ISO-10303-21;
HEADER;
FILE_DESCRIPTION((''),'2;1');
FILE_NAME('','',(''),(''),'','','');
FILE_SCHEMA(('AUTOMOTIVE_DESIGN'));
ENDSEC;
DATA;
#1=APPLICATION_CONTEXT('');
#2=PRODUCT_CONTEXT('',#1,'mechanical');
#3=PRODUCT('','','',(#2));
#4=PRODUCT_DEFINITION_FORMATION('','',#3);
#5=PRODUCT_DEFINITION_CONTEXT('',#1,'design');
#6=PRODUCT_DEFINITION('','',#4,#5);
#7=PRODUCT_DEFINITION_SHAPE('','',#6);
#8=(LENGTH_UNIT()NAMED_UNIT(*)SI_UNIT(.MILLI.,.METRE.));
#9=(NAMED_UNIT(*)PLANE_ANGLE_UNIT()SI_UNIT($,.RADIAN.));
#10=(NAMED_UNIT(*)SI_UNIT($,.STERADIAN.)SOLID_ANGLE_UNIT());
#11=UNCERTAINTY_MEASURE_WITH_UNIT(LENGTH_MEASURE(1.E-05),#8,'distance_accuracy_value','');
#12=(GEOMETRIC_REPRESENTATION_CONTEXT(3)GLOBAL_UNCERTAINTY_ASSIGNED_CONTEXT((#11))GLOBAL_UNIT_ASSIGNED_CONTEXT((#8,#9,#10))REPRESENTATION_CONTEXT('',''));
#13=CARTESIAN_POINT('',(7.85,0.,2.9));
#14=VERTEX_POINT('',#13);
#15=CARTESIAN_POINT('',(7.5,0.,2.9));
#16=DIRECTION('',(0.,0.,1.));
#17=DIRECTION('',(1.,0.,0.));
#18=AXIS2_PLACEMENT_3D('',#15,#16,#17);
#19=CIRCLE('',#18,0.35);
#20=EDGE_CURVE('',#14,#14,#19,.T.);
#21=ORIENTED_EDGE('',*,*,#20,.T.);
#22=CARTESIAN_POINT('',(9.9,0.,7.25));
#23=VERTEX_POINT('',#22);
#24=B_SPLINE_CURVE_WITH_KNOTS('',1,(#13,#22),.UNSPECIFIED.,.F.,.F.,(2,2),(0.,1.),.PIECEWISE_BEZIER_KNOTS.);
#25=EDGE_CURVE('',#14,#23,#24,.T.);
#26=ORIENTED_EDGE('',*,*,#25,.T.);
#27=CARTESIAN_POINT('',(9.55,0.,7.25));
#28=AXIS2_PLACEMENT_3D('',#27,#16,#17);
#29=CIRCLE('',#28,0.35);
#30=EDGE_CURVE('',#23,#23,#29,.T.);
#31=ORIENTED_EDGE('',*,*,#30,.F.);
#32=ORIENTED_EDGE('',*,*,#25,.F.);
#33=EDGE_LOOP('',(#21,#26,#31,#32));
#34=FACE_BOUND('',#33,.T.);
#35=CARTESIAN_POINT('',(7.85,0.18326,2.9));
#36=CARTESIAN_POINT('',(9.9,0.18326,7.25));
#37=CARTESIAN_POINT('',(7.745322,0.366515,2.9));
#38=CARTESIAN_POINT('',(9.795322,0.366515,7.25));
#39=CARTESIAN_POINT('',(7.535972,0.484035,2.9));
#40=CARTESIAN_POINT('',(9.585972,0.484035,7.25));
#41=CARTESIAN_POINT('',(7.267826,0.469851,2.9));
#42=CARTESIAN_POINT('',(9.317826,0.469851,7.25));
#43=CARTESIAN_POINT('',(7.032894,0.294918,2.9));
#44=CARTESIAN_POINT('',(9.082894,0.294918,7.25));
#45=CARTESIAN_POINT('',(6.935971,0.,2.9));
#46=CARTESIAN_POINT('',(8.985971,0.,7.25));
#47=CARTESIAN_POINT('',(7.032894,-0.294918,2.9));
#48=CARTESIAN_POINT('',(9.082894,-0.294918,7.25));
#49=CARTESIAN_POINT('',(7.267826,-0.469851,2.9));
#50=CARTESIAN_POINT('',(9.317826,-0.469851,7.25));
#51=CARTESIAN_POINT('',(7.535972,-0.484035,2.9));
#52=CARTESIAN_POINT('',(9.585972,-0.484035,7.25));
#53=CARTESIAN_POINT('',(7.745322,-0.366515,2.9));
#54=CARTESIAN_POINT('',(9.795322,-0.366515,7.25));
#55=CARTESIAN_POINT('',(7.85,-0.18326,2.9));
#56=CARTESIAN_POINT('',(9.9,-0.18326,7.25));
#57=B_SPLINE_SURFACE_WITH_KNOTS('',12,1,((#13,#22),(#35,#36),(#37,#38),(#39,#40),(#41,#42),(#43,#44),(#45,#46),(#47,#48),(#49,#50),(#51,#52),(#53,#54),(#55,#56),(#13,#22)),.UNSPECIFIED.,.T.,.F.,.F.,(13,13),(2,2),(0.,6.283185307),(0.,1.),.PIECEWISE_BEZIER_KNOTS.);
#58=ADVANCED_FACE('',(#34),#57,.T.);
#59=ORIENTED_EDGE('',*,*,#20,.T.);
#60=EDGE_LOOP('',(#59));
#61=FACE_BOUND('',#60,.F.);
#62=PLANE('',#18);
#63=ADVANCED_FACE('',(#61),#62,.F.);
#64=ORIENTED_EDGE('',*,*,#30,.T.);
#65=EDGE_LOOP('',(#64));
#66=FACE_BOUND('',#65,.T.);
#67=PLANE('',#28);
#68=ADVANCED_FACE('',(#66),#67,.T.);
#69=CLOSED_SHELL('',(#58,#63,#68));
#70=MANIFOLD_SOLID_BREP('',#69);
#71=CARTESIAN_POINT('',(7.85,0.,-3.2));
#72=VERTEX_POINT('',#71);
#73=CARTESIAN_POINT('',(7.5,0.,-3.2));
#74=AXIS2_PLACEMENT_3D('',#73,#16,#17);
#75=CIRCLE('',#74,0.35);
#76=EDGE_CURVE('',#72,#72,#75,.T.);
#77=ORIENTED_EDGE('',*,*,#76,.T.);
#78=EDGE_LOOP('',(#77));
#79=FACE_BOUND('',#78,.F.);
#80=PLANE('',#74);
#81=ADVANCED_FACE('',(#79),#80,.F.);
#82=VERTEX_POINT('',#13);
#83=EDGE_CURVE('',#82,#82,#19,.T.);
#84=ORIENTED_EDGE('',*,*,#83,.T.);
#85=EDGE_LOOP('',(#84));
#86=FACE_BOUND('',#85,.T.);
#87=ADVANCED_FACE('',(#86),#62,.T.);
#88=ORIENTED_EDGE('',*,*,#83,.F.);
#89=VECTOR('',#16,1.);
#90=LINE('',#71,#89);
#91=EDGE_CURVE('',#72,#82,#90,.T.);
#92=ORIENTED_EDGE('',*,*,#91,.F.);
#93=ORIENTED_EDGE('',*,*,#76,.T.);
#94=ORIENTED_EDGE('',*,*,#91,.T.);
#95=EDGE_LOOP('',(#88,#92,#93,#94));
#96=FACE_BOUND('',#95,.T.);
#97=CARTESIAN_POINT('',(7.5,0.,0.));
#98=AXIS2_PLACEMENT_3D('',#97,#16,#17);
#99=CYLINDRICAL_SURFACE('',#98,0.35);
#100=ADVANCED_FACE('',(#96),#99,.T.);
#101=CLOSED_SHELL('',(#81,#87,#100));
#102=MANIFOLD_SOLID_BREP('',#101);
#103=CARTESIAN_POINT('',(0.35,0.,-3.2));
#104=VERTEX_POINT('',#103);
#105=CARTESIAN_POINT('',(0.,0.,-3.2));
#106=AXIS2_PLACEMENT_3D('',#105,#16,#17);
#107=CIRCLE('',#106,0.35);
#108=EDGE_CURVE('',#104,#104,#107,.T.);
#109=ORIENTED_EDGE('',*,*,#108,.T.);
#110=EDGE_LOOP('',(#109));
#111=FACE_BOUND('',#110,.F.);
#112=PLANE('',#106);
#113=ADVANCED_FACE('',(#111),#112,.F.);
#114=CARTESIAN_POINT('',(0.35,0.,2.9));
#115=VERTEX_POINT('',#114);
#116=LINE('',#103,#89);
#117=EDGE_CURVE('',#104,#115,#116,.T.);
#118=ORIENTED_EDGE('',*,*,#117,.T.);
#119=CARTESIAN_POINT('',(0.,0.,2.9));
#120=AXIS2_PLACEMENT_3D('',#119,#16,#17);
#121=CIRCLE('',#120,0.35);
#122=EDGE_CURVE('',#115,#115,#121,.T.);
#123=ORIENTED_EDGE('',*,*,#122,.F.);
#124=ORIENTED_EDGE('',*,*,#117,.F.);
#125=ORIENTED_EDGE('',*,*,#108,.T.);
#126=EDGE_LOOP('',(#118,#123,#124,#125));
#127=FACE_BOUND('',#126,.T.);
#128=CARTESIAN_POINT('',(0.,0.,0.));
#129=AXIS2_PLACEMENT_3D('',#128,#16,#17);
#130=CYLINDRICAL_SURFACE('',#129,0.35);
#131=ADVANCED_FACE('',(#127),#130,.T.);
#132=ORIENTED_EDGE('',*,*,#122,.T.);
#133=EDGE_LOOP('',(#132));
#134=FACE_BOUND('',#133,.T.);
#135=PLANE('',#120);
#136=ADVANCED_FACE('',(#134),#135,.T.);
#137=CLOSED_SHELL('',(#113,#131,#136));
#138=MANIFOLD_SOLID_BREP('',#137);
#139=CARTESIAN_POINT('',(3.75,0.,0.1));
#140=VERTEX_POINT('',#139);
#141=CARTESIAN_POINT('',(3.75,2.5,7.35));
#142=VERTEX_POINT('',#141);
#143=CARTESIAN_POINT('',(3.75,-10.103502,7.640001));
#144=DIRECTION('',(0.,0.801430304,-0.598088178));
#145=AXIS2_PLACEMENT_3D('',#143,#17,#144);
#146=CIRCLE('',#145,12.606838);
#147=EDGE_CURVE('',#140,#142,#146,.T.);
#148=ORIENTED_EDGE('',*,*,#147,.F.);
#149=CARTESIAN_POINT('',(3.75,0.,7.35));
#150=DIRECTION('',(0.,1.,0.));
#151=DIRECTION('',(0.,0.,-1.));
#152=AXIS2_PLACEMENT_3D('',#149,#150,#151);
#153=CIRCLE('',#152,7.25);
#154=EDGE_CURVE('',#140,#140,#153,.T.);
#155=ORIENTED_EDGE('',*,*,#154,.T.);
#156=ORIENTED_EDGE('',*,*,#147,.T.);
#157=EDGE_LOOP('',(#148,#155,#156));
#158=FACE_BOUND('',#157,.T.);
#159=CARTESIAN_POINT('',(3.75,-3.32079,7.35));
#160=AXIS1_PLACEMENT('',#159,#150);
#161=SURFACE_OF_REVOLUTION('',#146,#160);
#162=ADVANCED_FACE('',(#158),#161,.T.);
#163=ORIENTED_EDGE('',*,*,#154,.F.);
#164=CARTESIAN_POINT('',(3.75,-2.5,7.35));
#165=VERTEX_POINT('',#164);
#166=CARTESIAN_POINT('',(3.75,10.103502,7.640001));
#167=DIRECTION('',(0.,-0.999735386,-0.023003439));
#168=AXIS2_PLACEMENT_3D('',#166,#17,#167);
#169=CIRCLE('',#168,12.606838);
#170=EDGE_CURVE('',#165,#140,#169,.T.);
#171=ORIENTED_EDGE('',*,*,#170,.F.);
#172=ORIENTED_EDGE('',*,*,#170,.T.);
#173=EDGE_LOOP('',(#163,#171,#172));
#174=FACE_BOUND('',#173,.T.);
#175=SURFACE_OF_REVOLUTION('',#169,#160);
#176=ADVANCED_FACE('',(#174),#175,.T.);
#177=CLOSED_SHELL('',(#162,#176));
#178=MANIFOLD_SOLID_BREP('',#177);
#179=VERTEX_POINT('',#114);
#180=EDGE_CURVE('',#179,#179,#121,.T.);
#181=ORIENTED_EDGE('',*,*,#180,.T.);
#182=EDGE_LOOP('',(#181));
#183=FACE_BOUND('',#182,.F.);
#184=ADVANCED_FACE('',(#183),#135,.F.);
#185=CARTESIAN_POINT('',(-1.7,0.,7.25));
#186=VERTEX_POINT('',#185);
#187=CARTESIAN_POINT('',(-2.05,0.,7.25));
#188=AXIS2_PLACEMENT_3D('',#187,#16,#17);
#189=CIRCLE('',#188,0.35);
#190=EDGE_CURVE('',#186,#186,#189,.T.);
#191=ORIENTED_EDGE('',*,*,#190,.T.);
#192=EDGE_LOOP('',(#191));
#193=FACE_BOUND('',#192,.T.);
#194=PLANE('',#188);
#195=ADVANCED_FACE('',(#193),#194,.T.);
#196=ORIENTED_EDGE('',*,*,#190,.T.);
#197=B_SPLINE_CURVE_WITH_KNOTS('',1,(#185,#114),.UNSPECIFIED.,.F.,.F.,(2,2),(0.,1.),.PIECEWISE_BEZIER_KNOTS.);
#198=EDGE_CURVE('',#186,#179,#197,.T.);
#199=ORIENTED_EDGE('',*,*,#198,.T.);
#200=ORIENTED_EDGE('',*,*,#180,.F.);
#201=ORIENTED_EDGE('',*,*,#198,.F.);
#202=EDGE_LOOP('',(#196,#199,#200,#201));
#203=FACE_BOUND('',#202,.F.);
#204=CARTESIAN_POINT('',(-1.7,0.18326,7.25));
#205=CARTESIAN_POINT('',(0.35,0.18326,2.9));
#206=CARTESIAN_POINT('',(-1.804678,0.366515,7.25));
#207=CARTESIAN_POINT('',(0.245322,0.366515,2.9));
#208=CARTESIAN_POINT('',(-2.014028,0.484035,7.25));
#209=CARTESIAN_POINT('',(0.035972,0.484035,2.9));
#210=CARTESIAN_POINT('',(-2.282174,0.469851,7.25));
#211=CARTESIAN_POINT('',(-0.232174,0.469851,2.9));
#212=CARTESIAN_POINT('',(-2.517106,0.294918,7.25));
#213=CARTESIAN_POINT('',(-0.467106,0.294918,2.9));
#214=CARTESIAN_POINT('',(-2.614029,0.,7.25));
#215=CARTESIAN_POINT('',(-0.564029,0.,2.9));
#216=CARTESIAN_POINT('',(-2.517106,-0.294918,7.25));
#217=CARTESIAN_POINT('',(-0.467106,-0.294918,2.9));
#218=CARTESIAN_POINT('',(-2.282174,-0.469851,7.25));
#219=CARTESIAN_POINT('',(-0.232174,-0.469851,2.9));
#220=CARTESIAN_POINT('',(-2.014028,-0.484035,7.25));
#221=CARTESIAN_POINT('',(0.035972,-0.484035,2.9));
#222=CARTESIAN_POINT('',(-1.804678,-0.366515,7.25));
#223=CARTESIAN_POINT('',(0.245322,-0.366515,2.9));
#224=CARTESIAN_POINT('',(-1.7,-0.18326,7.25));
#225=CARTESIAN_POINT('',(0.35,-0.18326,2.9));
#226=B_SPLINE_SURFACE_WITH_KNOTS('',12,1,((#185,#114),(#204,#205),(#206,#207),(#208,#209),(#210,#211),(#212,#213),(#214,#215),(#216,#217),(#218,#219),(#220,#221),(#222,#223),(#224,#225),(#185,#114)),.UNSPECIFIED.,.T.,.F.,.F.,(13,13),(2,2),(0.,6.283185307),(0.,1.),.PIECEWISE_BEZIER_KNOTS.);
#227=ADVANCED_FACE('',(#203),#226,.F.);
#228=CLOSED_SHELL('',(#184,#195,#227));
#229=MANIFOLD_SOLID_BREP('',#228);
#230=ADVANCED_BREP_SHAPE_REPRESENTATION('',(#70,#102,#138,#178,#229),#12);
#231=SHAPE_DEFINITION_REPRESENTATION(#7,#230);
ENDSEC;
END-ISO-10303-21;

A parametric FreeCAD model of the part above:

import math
import FreeCAD as App
import Part
import Sketcher
from FreeCAD import Vector

doc = App.newDocument("Part")
params = doc.addObject("Spreadsheet::Sheet", "Params")
for row, (alias, value) in enumerate([
    ("sketch1_diameter", "0.7 mm"),
    ("pad1_length", "2.9 mm"),
    ("pad1_length2", "3.2 mm"),
    ("sketch2_width", "5 mm"),
    ("revolution_angle", "360 deg"),
    ("sketch3_diameter", "0.7 mm"),
    ("sketch4_diameter", "0.7 mm"),
    ("sketch5_diameter", "0.7 mm"),
    ("sketch6_diameter", "0.7 mm"),
], start=1):
    params.set(f"A{row}", alias)
    params.set(f"B{row}", "=" + value)
    params.setAlias(f"B{row}", alias)

body = doc.addObject("PartDesign::Body", "Body")
body.AllowCompound = True

# Sketch on XY plane
sketch1 = body.newObject("Sketcher::SketchObject", "Sketch")
sketch1.AttachmentSupport = (doc.getObject("XY_Plane"), [""])
sketch1.MapMode = "FlatFace"
sketch1.addGeometry([
    Part.Circle(Vector(0, 0, 0), Vector(0, 0, 1), 0.35),
    Part.Circle(Vector(7.5, 0, 0), Vector(0, 0, 1), 0.35),
], False)
sketch1.addConstraint([
    Sketcher.Constraint("Coincident", 0, 3, -1, 1),
    Sketcher.Constraint("Equal", 0, 1),
    Sketcher.Constraint("PointOnObject", 1, 3, -1),
    Sketcher.Constraint("Diameter", 0, 0.7),
    Sketcher.Constraint("DistanceX", -1, 1, 1, 3, 7.5),
])
sketch1.setExpression("Constraints[3]", "Params.sketch1_diameter")
pad1 = body.newObject("PartDesign::Pad", "Pad")
pad1.Profile = sketch1
pad1.Type = "TwoLengths"
pad1.setExpression("Length", "Params.pad1_length")
pad1.setExpression("Length2", "Params.pad1_length2")
body2 = doc.addObject("PartDesign::Body", "Body001")

# Sketch on YZ plane
sketch2 = body2.newObject("Sketcher::SketchObject", "Sketch001")
sketch2.AttachmentSupport = (doc.getObject("YZ_Plane001"), [""])
sketch2.MapMode = "FlatFace"
sketch2.AttachmentOffset = App.Placement(Vector(0, 0, 3.75), App.Rotation())
sketch2.addGeometry([
    Part.LineSegment(Vector(2.5, 7.35, 0), Vector(-2.5, 7.35, 0)),
    Part.ArcOfCircle(Part.Circle(Vector(10.103502, 7.640001, 0), Vector(0, 0, 1), 12.606838), math.radians(-178.681884), math.radians(-143.266904)),
    Part.ArcOfCircle(Part.Circle(Vector(-10.103502, 7.640001, 0), Vector(0, 0, 1), 12.606838), math.radians(-36.733096), math.radians(-1.318116)),
], False)
sketch2.addGeometry(Part.LineSegment(Vector(-10.103502, 7.35, 0), Vector(10.103502, 7.35, 0)), True)  # axis
sketch2.addConstraint([
    Sketcher.Constraint("Coincident", 0, 2, 1, 1),
    Sketcher.Constraint("Coincident", 1, 2, 2, 1),
    Sketcher.Constraint("Coincident", 2, 2, 0, 1),
    Sketcher.Constraint("Horizontal", 0),
    Sketcher.Constraint("Horizontal", 3),
    Sketcher.Constraint("Equal", 1, 2),
    Sketcher.Constraint("Symmetric", 1, 3, 2, 3, -2),
    Sketcher.Constraint("Horizontal", 2, 2, 3, 1),
    Sketcher.Constraint("Vertical", 2, 3, 3, 1),
    Sketcher.Constraint("Vertical", 1, 3, 3, 2),
    Sketcher.Constraint("DistanceX", 0, 2, 0, 1, 5.0),
    Sketcher.Constraint("DistanceY", -1, 1, 1, 2, 0.1),
    Sketcher.Constraint("DistanceY", -1, 1, 1, 3, 7.640001),
    Sketcher.Constraint("DistanceY", -1, 1, 0, 2, 7.35),
])
sketch2.setExpression("Constraints[10]", "Params.sketch2_width")
revolution = body2.newObject("PartDesign::Revolution", "Revolution")
revolution.Profile = sketch2
revolution.ReferenceAxis = (sketch2, ["Axis0"])
revolution.setExpression("Angle", "Params.revolution_angle")
body3 = doc.addObject("PartDesign::Body", "Body002")

# Sketch on XY plane
sketch3 = body3.newObject("Sketcher::SketchObject", "Sketch002")
sketch3.AttachmentSupport = (doc.getObject("XY_Plane002"), [""])
sketch3.MapMode = "FlatFace"
sketch3.AttachmentOffset = App.Placement(Vector(0, 0, 7.25), App.Rotation())
sketch3.addGeometry(Part.Circle(Vector(-2.05, 0, 0), Vector(0, 0, 1), 0.35), False)
sketch3.addConstraint([
    Sketcher.Constraint("PointOnObject", 0, 3, -1),
    Sketcher.Constraint("Diameter", 0, 0.7),
    Sketcher.Constraint("DistanceX", 0, 3, -1, 1, 2.05),
])
sketch3.setExpression("Constraints[1]", "Params.sketch3_diameter")

# Sketch on XY plane
sketch4 = body3.newObject("Sketcher::SketchObject", "Sketch003")
sketch4.AttachmentSupport = (doc.getObject("XY_Plane002"), [""])
sketch4.MapMode = "FlatFace"
sketch4.AttachmentOffset = App.Placement(Vector(0, 0, 2.9), App.Rotation())
sketch4.addGeometry(Part.Circle(Vector(0, 0, 0), Vector(0, 0, 1), 0.35), False)
sketch4.addConstraint([
    Sketcher.Constraint("Coincident", 0, 3, -1, 1),
    Sketcher.Constraint("Diameter", 0, 0.7),
])
sketch4.setExpression("Constraints[1]", "Params.sketch4_diameter")

additiveloft = body3.newObject("PartDesign::AdditiveLoft", "AdditiveLoft")
additiveloft.Profile = sketch3
additiveloft.Sections = [sketch4]
body4 = doc.addObject("PartDesign::Body", "Body003")

# Sketch on XY plane
sketch5 = body4.newObject("Sketcher::SketchObject", "Sketch004")
sketch5.AttachmentSupport = (doc.getObject("XY_Plane003"), [""])
sketch5.MapMode = "FlatFace"
sketch5.AttachmentOffset = App.Placement(Vector(0, 0, 2.9), App.Rotation())
sketch5.addGeometry(Part.Circle(Vector(7.5, 0, 0), Vector(0, 0, 1), 0.35), False)
sketch5.addConstraint([
    Sketcher.Constraint("PointOnObject", 0, 3, -1),
    Sketcher.Constraint("Diameter", 0, 0.7),
    Sketcher.Constraint("DistanceX", -1, 1, 0, 3, 7.5),
])
sketch5.setExpression("Constraints[1]", "Params.sketch5_diameter")

# Sketch on XY plane
sketch6 = body4.newObject("Sketcher::SketchObject", "Sketch005")
sketch6.AttachmentSupport = (doc.getObject("XY_Plane003"), [""])
sketch6.MapMode = "FlatFace"
sketch6.AttachmentOffset = App.Placement(Vector(0, 0, 7.25), App.Rotation())
sketch6.addGeometry(Part.Circle(Vector(9.55, 0, 0), Vector(0, 0, 1), 0.35), False)
sketch6.addConstraint([
    Sketcher.Constraint("PointOnObject", 0, 3, -1),
    Sketcher.Constraint("Diameter", 0, 0.7),
    Sketcher.Constraint("DistanceX", -1, 1, 0, 3, 9.55),
])
sketch6.setExpression("Constraints[1]", "Params.sketch6_diameter")

additiveloft2 = body4.newObject("PartDesign::AdditiveLoft", "AdditiveLoft001")
additiveloft2.Profile = sketch5
additiveloft2.Sections = [sketch6]

doc.recompute()
